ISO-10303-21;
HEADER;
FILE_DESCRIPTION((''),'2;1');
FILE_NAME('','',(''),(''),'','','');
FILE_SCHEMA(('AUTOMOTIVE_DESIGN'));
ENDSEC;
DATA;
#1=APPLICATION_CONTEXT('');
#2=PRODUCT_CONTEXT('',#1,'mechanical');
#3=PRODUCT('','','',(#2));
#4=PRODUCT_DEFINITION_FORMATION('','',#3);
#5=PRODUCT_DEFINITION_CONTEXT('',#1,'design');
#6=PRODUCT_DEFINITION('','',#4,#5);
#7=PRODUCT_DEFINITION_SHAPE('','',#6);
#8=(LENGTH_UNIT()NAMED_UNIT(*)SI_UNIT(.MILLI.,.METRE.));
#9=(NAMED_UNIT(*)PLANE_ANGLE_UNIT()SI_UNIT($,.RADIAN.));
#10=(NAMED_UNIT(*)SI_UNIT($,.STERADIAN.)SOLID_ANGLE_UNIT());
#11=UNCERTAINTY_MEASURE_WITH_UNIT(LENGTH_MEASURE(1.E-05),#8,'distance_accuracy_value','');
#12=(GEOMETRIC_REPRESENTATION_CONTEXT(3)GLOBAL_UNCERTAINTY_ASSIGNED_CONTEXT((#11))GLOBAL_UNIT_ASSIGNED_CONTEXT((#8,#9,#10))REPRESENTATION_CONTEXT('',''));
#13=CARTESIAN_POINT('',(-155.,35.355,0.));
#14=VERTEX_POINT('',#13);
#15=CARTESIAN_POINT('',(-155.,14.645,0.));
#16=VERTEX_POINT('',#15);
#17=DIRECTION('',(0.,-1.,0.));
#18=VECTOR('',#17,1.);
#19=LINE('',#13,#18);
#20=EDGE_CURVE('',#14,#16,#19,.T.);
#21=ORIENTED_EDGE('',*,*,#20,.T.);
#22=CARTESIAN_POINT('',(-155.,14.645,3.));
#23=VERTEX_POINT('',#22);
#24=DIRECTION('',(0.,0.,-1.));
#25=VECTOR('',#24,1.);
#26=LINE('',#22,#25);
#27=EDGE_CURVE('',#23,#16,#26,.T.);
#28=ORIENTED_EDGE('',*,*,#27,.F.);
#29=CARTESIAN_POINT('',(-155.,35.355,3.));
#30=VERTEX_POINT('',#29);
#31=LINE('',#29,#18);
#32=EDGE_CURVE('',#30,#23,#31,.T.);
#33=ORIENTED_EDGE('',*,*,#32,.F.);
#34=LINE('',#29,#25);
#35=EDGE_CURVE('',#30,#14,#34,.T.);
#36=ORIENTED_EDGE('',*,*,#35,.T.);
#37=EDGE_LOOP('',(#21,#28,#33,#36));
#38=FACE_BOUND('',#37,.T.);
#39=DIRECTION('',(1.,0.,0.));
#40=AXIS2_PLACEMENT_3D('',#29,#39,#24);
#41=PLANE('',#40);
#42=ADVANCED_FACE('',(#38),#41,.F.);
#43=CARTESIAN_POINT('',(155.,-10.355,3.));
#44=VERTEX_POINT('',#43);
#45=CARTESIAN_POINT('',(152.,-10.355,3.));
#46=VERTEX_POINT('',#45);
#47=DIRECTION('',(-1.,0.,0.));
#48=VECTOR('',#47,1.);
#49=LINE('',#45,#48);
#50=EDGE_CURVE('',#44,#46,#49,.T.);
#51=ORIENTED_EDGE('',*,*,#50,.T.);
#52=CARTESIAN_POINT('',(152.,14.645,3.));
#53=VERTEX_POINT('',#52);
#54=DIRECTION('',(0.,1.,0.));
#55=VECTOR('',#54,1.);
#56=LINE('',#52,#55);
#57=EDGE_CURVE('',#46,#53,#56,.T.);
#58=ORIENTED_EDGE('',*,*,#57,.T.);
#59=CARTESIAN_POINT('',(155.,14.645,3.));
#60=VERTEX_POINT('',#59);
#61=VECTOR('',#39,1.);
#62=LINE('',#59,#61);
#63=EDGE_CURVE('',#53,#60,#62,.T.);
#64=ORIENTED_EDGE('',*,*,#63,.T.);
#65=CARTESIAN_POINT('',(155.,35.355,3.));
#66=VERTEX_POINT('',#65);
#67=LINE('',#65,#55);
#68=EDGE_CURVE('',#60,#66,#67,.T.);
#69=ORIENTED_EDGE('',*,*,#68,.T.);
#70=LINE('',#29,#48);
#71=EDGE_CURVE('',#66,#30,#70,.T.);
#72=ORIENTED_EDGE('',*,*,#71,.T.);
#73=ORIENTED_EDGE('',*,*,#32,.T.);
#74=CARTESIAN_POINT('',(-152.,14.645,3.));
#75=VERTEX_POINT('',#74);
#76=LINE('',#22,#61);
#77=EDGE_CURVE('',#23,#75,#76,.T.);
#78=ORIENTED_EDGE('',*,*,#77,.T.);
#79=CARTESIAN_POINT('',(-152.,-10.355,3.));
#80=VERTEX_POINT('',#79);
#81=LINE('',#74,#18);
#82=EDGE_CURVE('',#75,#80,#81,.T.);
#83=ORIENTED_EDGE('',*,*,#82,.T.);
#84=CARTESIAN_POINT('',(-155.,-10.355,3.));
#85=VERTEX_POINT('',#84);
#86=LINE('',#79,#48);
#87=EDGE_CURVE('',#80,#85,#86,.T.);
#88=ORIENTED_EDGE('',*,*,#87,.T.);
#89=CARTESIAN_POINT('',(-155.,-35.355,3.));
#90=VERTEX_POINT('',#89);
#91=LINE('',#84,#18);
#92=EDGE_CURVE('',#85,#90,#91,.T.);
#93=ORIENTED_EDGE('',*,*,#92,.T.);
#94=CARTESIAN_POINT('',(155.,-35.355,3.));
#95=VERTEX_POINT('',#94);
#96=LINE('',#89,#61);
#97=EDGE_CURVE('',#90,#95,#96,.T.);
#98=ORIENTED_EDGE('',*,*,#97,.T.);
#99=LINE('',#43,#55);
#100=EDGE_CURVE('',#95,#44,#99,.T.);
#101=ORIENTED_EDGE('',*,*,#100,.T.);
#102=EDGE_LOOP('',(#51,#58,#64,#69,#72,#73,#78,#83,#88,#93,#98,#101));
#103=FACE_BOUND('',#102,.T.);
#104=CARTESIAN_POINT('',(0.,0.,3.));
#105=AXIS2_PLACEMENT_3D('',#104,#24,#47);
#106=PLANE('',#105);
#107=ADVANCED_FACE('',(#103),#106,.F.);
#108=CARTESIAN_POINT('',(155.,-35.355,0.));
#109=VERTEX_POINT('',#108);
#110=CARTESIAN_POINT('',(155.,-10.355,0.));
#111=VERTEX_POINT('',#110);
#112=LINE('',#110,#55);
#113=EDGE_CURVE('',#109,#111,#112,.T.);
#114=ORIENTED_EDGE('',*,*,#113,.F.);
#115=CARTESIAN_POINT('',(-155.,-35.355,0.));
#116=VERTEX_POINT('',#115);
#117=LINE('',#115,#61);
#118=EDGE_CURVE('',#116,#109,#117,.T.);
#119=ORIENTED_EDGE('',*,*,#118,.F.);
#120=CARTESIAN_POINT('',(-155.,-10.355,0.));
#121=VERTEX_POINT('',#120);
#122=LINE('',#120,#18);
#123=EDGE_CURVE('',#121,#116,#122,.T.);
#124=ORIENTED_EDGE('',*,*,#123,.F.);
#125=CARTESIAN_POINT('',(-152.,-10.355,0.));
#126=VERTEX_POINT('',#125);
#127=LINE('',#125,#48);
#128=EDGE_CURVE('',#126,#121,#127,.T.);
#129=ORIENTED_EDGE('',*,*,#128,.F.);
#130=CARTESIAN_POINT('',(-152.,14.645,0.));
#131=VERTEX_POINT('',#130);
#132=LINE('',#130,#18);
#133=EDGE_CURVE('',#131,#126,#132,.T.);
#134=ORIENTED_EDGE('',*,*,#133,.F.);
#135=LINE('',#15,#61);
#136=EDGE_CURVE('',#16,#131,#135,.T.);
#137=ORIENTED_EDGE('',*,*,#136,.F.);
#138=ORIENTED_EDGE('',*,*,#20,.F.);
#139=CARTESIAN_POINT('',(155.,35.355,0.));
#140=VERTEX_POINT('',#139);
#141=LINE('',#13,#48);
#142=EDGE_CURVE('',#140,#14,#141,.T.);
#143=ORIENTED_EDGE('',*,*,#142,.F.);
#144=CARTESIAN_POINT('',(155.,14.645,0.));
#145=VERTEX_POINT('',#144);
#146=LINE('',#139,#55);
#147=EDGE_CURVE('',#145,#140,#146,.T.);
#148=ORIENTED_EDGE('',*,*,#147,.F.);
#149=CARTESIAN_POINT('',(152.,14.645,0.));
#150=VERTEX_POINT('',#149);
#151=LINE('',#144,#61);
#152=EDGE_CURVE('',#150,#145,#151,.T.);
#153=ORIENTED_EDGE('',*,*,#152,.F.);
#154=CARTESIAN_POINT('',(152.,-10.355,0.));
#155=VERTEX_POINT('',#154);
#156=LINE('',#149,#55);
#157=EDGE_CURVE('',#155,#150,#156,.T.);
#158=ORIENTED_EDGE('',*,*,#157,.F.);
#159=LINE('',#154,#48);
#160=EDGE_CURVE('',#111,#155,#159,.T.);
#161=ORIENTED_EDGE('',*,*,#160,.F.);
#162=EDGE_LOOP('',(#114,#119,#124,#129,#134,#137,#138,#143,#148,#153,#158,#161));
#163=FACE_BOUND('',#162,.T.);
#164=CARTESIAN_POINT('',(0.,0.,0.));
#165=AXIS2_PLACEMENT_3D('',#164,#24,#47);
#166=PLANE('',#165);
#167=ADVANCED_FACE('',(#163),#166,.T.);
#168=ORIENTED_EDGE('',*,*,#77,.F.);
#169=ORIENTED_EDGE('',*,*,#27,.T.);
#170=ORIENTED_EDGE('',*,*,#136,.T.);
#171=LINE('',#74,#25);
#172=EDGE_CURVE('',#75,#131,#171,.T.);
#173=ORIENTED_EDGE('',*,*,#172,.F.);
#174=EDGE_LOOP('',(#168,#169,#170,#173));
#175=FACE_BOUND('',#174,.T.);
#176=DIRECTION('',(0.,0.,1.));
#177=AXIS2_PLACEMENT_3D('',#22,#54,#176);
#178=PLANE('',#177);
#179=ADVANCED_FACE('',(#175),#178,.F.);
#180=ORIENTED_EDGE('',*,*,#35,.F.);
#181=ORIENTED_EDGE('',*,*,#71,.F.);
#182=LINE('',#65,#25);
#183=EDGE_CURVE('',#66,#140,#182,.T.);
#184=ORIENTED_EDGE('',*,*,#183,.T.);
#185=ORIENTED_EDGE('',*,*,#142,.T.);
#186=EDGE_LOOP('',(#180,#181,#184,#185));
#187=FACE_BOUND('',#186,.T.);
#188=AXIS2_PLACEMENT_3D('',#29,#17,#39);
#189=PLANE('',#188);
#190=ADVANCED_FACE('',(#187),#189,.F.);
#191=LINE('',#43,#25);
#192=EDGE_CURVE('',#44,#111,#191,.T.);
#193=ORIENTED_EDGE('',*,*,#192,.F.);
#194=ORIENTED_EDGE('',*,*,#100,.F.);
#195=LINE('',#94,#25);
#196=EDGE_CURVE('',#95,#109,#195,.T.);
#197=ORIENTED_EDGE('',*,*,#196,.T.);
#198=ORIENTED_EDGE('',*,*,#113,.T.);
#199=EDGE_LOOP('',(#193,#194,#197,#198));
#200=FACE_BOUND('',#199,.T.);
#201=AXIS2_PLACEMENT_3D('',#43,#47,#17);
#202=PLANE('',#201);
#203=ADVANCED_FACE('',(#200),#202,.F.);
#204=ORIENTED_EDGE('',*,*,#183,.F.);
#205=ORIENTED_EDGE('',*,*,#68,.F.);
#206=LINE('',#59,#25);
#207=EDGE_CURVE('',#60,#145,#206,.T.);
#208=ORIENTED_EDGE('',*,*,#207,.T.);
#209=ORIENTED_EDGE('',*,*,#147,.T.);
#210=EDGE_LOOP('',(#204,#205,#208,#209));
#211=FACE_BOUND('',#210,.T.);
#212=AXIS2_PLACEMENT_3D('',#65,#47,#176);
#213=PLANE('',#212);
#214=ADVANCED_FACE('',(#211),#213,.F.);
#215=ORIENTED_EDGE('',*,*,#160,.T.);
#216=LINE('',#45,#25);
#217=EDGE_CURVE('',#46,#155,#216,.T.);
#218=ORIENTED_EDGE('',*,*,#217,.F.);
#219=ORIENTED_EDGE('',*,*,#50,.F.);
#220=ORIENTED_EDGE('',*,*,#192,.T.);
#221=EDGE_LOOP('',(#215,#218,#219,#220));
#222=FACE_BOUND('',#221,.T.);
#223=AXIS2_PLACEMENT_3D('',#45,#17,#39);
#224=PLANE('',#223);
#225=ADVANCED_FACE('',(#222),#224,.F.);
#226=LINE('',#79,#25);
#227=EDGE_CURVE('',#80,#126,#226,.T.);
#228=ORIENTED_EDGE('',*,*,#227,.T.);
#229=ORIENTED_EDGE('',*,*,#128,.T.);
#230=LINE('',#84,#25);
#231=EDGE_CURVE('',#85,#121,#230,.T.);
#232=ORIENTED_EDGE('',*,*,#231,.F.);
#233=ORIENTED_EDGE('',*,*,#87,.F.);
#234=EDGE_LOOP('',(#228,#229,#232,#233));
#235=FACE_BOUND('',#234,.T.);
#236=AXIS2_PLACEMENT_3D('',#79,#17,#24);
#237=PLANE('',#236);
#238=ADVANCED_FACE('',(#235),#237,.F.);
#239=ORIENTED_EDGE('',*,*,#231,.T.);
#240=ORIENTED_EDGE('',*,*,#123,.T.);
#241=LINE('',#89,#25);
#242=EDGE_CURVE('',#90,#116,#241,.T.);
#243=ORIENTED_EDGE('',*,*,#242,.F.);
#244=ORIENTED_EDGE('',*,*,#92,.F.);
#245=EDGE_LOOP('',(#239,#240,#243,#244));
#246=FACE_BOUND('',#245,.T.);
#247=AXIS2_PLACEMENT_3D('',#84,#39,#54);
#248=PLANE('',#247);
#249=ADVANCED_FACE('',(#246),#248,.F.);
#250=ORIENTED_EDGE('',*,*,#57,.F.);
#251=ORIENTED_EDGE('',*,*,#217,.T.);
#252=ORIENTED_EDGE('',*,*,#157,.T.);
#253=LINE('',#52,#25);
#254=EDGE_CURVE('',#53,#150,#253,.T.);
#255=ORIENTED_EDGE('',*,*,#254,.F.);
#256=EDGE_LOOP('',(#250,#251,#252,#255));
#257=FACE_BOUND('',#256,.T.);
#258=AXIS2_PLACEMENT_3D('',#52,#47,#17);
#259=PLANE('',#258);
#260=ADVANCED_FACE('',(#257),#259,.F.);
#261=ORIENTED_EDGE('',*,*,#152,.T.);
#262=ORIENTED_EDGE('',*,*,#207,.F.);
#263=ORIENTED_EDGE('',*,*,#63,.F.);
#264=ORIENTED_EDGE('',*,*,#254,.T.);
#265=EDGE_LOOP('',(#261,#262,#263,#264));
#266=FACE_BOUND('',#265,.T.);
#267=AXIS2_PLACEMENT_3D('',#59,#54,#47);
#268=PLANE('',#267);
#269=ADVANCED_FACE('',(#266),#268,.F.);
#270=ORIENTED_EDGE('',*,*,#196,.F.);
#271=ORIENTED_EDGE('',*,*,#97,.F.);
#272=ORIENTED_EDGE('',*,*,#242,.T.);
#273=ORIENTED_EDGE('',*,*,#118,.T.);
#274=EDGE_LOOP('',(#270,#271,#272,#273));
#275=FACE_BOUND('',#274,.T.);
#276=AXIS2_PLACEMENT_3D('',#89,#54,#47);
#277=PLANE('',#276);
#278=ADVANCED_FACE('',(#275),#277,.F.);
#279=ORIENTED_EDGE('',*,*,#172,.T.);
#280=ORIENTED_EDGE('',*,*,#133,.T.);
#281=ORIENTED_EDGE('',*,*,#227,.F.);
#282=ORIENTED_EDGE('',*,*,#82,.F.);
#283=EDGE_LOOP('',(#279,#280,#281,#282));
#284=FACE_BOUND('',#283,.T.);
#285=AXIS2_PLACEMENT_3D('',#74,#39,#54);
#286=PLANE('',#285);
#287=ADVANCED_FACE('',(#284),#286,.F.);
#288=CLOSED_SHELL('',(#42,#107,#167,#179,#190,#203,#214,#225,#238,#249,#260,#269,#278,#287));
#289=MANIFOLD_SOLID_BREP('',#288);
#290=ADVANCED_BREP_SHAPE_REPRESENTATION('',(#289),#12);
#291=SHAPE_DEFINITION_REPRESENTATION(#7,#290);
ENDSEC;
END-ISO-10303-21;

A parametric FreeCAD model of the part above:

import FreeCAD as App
import Part
import Sketcher
Q = App.Units.Quantity

doc = App.newDocument("Part")
body = doc.addObject("PartDesign::Body", "Body")

sketch1 = body.newObject("Sketcher::SketchObject", "Sketch")
sketch1.AttachmentSupport = (doc.getObject("XY_Plane"), [""])
sketch1.MapMode = "FlatFace"
sketch1.addGeometry([
    Part.LineSegment(App.Vector(-155, 35.355, 0), App.Vector(-155, 14.645, 0)),
    Part.LineSegment(App.Vector(-155, 14.645, 0), App.Vector(-152, 14.645, 0)),
    Part.LineSegment(App.Vector(-152, 14.645, 0), App.Vector(-152, -10.355, 0)),
    Part.LineSegment(App.Vector(-152, -10.355, 0), App.Vector(-155, -10.355, 0)),
    Part.LineSegment(App.Vector(-155, -10.355, 0), App.Vector(-155, -35.355, 0)),
    Part.LineSegment(App.Vector(-155, -35.355, 0), App.Vector(155, -35.355, 0)),
    Part.LineSegment(App.Vector(155, -35.355, 0), App.Vector(155, -10.355, 0)),
    Part.LineSegment(App.Vector(155, -10.355, 0), App.Vector(152, -10.355, 0)),
    Part.LineSegment(App.Vector(152, -10.355, 0), App.Vector(152, 14.645, 0)),
    Part.LineSegment(App.Vector(152, 14.645, 0), App.Vector(155, 14.645, 0)),
    Part.LineSegment(App.Vector(155, 14.645, 0), App.Vector(155, 35.355, 0)),
    Part.LineSegment(App.Vector(155, 35.355, 0), App.Vector(-155, 35.355, 0)),
], False)
sketch1.addConstraint([
    Sketcher.Constraint("Coincident", 0, 2, 1, 1),
    Sketcher.Constraint("Coincident", 1, 2, 2, 1),
    Sketcher.Constraint("Coincident", 2, 2, 3, 1),
    Sketcher.Constraint("Coincident", 3, 2, 4, 1),
    Sketcher.Constraint("Coincident", 4, 2, 5, 1),
    Sketcher.Constraint("Coincident", 5, 2, 6, 1),
    Sketcher.Constraint("Coincident", 6, 2, 7, 1),
    Sketcher.Constraint("Coincident", 7, 2, 8, 1),
    Sketcher.Constraint("Coincident", 8, 2, 9, 1),
    Sketcher.Constraint("Coincident", 9, 2, 10, 1),
    Sketcher.Constraint("Coincident", 10, 2, 11, 1),
    Sketcher.Constraint("Coincident", 11, 2, 0, 1),
    Sketcher.Constraint("Vertical", 0),
    Sketcher.Constraint("Horizontal", 1),
    Sketcher.Constraint("Vertical", 2),
    Sketcher.Constraint("Horizontal", 3),
    Sketcher.Constraint("Vertical", 4),
    Sketcher.Constraint("Horizontal", 5),
    Sketcher.Constraint("Vertical", 6),
    Sketcher.Constraint("Horizontal", 7),
    Sketcher.Constraint("Vertical", 8),
    Sketcher.Constraint("Horizontal", 9),
    Sketcher.Constraint("Vertical", 10),
    Sketcher.Constraint("Horizontal", 11),
    Sketcher.Constraint("Symmetric", 4, 2, 10, 2, -1, 1),
    Sketcher.Constraint("Symmetric", 3, 2, 6, 2, -2),
    Sketcher.Constraint("Symmetric", 1, 2, 8, 2, -2),
    Sketcher.Constraint("Vertical", 0, 2, 3, 2),
    Sketcher.Constraint("Equal", 2, 4),
    Sketcher.Constraint("DistanceX", 1, 1, 1, 2, Q("3 mm")),
    Sketcher.Constraint("DistanceX", 5, 1, 5, 2, Q("310 mm")),
    Sketcher.Constraint("DistanceY", 2, 2, 2, 1, Q("25 mm")),
    Sketcher.Constraint("DistanceY", 0, 2, 0, 1, Q("20.71 mm")),
])
pad1 = body.newObject("PartDesign::Pad", "Pad")
pad1.Profile = sketch1
pad1.Length = 3

doc.recompute()
